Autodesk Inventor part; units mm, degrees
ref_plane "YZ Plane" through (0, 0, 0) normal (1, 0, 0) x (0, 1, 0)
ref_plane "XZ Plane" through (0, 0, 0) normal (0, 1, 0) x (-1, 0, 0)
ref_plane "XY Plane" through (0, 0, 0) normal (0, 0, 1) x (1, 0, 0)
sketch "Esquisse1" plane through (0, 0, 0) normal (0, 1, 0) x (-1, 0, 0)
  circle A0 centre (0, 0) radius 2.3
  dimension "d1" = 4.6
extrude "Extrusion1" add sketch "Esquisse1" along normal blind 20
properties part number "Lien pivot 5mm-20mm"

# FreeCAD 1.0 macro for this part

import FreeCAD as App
import Part
import Sketcher

doc = App.newDocument("Part")
body = doc.addObject("PartDesign::Body", "Body")

# Sketch on XZ plane
sketch1 = doc.addObject("Sketcher::SketchObject", "Sketch")
body.addObject(sketch1)
sketch1.AttachmentSupport = (doc.XZ_Plane, [""])
sketch1.MapMode = "FlatFace"
sketch1.addGeometry(Part.Circle(App.Vector(0, 0, 0), App.Vector(0, 0, 1), 2.3), False)
sketch1.addConstraint(Sketcher.Constraint("Coincident", 0, 3, -1, 1))
sketch1.addConstraint(Sketcher.Constraint("Diameter", 0, 4.6))
pad1 = doc.addObject("PartDesign::Pad", "Pad")
body.addObject(pad1)
pad1.Profile = sketch1
pad1.Length = 20
pad1.Reversed = True

doc.recompute()
